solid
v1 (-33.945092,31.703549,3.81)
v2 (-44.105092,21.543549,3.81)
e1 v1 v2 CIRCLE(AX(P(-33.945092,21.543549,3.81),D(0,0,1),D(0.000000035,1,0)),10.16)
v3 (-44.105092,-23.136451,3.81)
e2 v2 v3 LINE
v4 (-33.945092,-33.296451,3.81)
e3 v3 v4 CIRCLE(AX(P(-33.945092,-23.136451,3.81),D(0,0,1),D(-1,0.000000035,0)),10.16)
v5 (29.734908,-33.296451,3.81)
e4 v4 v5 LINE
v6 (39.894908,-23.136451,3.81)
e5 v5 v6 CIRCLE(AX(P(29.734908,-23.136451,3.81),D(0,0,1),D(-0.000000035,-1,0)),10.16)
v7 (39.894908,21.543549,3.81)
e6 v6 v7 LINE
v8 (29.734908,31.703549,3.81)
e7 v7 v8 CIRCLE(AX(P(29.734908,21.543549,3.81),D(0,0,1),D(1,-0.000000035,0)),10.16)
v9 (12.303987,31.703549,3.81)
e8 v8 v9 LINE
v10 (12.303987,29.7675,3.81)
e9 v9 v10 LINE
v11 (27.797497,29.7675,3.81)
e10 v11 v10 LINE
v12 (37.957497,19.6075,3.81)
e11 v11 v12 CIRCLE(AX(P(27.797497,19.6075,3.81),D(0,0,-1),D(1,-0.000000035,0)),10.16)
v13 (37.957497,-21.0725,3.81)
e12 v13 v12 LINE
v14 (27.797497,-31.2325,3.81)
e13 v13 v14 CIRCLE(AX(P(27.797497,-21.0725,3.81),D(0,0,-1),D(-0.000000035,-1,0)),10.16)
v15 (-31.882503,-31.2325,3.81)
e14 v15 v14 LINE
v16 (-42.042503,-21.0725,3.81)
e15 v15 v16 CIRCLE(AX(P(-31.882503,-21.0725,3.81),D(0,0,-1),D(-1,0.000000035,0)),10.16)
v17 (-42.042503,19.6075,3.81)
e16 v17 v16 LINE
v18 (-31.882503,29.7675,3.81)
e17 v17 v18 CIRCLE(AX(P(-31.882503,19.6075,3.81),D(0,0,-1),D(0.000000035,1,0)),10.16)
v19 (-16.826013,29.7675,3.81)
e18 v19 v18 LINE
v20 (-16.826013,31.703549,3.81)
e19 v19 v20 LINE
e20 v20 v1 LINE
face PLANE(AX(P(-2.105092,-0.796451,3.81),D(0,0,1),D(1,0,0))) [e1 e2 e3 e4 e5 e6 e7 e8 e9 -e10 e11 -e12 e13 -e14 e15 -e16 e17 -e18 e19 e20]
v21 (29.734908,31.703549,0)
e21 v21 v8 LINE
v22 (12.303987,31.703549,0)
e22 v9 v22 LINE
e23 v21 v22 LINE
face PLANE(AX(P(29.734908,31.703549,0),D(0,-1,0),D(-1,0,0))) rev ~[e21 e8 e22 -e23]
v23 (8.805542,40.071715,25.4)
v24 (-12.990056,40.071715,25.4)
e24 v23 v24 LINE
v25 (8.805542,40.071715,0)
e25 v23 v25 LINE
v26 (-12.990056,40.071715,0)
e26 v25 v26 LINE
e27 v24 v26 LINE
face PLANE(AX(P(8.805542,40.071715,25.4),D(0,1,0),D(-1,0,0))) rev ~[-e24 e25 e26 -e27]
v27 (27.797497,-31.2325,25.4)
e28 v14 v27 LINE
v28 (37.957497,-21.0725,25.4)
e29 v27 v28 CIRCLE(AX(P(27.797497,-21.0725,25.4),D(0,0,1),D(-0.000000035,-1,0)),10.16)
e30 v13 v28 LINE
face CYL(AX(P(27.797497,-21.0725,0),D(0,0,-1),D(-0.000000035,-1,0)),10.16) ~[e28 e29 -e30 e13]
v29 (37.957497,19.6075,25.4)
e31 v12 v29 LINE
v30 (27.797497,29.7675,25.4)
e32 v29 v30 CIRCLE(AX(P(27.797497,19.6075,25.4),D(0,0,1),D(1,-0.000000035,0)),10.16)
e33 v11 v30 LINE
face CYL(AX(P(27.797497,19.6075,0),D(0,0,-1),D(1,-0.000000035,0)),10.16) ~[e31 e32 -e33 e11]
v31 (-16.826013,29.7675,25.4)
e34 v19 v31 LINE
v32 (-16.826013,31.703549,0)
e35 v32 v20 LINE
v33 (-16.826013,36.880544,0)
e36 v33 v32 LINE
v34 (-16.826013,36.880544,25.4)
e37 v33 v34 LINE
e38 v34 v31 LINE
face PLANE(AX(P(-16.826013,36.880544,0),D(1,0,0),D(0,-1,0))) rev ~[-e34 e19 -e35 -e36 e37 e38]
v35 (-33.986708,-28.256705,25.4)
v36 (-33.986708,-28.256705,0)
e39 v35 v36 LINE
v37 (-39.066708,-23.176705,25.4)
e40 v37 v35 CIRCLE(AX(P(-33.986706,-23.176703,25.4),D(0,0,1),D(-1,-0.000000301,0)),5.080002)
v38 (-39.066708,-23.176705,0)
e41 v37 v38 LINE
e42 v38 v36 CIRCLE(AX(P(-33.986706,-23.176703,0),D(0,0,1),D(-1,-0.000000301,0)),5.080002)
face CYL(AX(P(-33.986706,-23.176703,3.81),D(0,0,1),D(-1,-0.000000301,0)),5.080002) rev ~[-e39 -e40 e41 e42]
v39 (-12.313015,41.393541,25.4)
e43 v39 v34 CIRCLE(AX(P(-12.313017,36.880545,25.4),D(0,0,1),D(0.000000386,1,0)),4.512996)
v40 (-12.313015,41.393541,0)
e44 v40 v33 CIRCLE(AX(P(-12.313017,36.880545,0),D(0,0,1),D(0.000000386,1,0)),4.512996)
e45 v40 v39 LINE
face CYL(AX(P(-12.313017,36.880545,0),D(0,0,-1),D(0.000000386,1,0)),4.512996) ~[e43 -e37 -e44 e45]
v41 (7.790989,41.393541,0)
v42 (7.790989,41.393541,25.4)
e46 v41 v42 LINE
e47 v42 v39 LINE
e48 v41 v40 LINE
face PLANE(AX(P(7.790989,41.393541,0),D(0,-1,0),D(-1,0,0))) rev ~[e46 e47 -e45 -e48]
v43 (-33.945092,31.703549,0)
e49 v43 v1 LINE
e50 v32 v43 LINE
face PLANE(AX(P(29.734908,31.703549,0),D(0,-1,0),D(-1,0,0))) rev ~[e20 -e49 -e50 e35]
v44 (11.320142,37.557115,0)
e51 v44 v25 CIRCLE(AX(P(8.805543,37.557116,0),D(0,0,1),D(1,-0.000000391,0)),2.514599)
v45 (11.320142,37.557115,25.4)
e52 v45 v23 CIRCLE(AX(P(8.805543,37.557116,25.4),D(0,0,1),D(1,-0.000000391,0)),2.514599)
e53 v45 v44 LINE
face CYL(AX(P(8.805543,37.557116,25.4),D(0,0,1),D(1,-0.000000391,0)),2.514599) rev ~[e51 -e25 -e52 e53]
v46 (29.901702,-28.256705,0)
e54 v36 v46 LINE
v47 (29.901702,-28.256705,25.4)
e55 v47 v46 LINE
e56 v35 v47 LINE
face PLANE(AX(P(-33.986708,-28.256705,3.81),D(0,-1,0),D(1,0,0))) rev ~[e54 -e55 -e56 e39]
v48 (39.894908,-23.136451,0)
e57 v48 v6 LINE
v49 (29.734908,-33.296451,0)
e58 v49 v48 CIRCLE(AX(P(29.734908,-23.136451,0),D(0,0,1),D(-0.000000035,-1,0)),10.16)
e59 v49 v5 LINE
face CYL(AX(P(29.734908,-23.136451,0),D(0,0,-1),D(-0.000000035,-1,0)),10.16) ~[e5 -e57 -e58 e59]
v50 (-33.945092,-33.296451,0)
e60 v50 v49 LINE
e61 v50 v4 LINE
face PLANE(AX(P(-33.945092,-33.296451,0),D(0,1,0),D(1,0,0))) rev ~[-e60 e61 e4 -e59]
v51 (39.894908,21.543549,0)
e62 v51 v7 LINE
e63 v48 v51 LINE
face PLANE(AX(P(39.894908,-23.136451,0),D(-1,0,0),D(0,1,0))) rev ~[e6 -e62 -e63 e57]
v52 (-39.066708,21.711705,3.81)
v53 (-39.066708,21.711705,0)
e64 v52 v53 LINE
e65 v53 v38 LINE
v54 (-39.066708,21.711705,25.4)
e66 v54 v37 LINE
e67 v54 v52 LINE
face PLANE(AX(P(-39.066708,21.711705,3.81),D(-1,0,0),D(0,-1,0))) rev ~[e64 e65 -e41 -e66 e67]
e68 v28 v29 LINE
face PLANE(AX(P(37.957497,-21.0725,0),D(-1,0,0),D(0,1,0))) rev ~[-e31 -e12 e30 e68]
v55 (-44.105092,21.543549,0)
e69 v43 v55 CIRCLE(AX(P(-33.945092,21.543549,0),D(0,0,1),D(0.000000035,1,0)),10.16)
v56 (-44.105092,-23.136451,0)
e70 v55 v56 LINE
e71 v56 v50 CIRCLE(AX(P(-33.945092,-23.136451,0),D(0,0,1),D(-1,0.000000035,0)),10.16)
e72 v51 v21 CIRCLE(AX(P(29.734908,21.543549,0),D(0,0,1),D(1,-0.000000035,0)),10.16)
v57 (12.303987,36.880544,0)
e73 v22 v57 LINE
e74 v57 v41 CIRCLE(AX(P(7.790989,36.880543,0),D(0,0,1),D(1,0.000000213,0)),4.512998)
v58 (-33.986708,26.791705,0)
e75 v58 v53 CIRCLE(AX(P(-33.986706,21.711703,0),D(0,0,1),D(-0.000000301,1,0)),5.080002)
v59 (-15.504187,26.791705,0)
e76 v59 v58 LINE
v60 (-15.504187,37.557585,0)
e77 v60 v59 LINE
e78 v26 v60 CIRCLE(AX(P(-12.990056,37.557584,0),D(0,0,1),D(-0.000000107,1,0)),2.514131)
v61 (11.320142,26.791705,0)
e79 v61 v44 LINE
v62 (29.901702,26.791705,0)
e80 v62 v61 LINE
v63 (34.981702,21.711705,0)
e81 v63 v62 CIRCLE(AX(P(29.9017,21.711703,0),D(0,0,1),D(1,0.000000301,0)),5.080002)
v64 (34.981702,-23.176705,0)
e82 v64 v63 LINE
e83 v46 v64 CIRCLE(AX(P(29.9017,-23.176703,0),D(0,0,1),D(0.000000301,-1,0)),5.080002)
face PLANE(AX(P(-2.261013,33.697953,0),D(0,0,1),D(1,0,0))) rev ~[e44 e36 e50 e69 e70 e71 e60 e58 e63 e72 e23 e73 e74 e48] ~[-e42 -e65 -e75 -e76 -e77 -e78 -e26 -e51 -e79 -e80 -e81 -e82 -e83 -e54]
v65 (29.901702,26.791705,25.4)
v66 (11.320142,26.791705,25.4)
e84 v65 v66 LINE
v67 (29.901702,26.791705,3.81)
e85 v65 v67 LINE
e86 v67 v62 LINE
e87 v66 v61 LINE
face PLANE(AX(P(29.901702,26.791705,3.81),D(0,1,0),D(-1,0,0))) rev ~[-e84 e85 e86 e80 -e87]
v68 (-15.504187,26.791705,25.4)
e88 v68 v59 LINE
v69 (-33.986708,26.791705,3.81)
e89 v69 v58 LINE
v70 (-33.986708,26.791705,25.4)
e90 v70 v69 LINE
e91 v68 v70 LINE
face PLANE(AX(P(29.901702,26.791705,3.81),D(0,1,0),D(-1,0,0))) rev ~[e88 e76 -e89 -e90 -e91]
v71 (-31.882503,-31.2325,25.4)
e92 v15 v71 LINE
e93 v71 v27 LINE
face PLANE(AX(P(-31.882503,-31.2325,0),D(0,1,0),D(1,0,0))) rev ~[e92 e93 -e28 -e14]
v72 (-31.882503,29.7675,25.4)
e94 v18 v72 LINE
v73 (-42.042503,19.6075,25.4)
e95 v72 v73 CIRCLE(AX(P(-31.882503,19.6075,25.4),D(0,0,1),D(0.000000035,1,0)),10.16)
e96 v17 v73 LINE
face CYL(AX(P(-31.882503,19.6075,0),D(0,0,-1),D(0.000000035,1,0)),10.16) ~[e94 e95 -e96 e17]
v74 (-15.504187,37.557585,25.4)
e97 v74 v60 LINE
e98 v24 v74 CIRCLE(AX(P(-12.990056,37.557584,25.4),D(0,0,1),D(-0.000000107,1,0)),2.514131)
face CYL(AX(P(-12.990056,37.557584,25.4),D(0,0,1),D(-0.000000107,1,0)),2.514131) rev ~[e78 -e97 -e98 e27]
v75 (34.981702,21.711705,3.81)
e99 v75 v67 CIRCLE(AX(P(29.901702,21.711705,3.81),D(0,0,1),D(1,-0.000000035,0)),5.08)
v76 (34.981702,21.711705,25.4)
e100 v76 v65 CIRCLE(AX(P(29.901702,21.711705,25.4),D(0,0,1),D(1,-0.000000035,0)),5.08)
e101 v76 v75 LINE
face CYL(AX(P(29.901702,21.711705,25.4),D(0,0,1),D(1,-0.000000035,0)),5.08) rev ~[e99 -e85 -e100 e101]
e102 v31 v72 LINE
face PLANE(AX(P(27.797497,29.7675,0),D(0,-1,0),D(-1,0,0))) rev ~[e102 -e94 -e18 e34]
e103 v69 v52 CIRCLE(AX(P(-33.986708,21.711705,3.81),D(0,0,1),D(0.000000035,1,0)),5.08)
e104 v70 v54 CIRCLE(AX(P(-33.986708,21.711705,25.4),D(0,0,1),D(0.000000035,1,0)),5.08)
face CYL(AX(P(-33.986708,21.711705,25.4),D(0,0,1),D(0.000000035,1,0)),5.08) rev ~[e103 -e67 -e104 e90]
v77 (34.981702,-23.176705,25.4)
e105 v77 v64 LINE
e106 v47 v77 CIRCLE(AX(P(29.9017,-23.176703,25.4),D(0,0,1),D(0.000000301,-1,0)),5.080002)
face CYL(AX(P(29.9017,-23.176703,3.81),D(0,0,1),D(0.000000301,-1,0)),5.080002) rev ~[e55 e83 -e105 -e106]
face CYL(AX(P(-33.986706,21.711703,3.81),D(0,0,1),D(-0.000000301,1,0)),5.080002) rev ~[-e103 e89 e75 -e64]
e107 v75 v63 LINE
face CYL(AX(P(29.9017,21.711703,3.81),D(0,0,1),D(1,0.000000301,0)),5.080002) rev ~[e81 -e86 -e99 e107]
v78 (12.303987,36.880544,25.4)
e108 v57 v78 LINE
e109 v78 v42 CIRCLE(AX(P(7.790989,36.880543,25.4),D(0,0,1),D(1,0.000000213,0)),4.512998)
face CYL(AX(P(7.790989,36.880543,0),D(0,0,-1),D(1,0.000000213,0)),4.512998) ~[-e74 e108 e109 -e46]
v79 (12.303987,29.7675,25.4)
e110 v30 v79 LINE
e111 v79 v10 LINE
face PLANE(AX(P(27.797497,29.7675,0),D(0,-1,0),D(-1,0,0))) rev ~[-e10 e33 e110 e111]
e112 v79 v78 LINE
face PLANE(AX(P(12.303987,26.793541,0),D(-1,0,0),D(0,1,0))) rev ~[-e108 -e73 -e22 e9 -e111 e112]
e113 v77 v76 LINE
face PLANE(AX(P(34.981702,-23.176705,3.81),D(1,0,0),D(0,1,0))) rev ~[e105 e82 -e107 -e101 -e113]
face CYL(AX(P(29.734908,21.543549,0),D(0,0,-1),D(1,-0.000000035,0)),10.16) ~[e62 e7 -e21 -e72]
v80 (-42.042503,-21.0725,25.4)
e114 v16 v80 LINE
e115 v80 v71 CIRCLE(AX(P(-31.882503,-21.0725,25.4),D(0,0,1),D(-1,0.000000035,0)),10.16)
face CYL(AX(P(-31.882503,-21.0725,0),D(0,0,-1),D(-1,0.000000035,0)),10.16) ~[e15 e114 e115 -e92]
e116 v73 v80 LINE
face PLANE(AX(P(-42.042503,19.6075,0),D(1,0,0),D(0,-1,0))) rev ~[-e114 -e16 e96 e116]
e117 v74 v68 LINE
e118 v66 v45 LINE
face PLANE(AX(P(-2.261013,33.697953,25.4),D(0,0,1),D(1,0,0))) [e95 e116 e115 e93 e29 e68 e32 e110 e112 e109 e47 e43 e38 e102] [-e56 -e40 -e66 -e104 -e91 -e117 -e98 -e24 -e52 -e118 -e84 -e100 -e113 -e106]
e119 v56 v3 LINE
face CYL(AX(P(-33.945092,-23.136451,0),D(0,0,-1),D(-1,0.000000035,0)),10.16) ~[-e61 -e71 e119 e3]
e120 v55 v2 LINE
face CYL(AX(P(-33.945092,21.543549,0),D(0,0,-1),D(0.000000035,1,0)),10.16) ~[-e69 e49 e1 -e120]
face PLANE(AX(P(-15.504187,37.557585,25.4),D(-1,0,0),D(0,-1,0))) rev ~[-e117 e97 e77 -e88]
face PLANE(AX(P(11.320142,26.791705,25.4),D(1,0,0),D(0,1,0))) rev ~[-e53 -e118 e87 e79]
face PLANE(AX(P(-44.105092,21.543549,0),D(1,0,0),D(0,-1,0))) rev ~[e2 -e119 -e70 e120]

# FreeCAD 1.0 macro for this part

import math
import FreeCAD as App
import Part
import Sketcher
Q = App.Units.Quantity

doc = App.newDocument("Part")
body = doc.addObject("PartDesign::Body", "Body")

sketch1 = body.newObject("Sketcher::SketchObject", "Sketch")
sketch1.AttachmentSupport = (doc.getObject("XY_Plane"), [""])
sketch1.MapMode = "FlatFace"
sketch1.addGeometry([
    Part.LineSegment(App.Vector(28, 30, 0), App.Vector(-32, 30, 0)),
    Part.ArcOfCircle(Part.Circle(App.Vector(-32, 20, 0), App.Vector(0, 0, 1), 10), math.radians(90), math.radians(180)),
    Part.LineSegment(App.Vector(-42, 20, 0), App.Vector(-42, -21, 0)),
    Part.ArcOfCircle(Part.Circle(App.Vector(-32, -21, 0), App.Vector(0, 0, 1), 10), math.radians(180), math.radians(270)),
    Part.LineSegment(App.Vector(-32, -31, 0), App.Vector(28, -31, 0)),
    Part.ArcOfCircle(Part.Circle(App.Vector(28, -21, 0), App.Vector(0, 0, 1), 10), math.radians(-90), math.radians(0)),
    Part.LineSegment(App.Vector(38, -21, 0), App.Vector(38, 20, 0)),
    Part.ArcOfCircle(Part.Circle(App.Vector(28, 20, 0), App.Vector(0, 0, 1), 10), math.radians(0), math.radians(90)),
], False)
sketch1.addConstraint([
    Sketcher.Constraint("Tangent", 0, 2, 1, 1),
    Sketcher.Constraint("Tangent", 1, 2, 2, 1),
    Sketcher.Constraint("Tangent", 2, 2, 3, 1),
    Sketcher.Constraint("Tangent", 3, 2, 4, 1),
    Sketcher.Constraint("Tangent", 4, 2, 5, 1),
    Sketcher.Constraint("Tangent", 5, 2, 6, 1),
    Sketcher.Constraint("Tangent", 6, 2, 7, 1),
    Sketcher.Constraint("Tangent", 7, 2, 0, 1),
    Sketcher.Constraint("Horizontal", 0),
    Sketcher.Constraint("Vertical", 2),
    Sketcher.Constraint("Horizontal", 4),
    Sketcher.Constraint("Vertical", 6),
    Sketcher.Constraint("Equal", 1, 3),
    Sketcher.Constraint("Equal", 3, 5),
    Sketcher.Constraint("Equal", 5, 7),
    Sketcher.Constraint("Radius", 1, Q("0.4 in")),
    Sketcher.Constraint("DistanceX", 0, 2, 0, 1, 59.68),
    Sketcher.Constraint("DistanceY", 2, 2, 2, 1, 40.68),
    Sketcher.Constraint("DistanceY", -1, 1, 1, 3, 19.6075),
    Sketcher.Constraint("DistanceX", 1, 3, -1, 1, 31.882503),
])
pad1 = body.newObject("PartDesign::Pad", "Pad")
pad1.Profile = sketch1
pad1.Length = Q("1 in")

sketch2 = body.newObject("Sketcher::SketchObject", "Sketch001")
sketch2.AttachmentSupport = (doc.getObject("XY_Plane"), [""])
sketch2.MapMode = "FlatFace"
sketch2.AttachmentOffset = App.Placement(App.Vector(0, 0, 1 * 25.4), App.Rotation())
sketch2.addGeometry([
    Part.LineSegment(App.Vector(30, 27, 0), App.Vector(-34, 27, 0)),
    Part.ArcOfCircle(Part.Circle(App.Vector(-34, 22, 0), App.Vector(0, 0, 1), 5), math.radians(90), math.radians(180)),
    Part.LineSegment(App.Vector(-39, 22, 0), App.Vector(-39, -23, 0)),
    Part.ArcOfCircle(Part.Circle(App.Vector(-34, -23, 0), App.Vector(0, 0, 1), 5), math.radians(-180), math.radians(-90)),
    Part.LineSegment(App.Vector(-34, -28, 0), App.Vector(30, -28, 0)),
    Part.ArcOfCircle(Part.Circle(App.Vector(30, -23, 0), App.Vector(0, 0, 1), 5), math.radians(-90), math.radians(0)),
    Part.LineSegment(App.Vector(35, -23, 0), App.Vector(35, 22, 0)),
    Part.ArcOfCircle(Part.Circle(App.Vector(30, 22, 0), App.Vector(0, 0, 1), 5), math.radians(0), math.radians(90)),
], False)
sketch2.addConstraint([
    Sketcher.Constraint("Tangent", 0, 2, 1, 1),
    Sketcher.Constraint("Tangent", 1, 2, 2, 1),
    Sketcher.Constraint("Tangent", 2, 2, 3, 1),
    Sketcher.Constraint("Tangent", 3, 2, 4, 1),
    Sketcher.Constraint("Tangent", 4, 2, 5, 1),
    Sketcher.Constraint("Tangent", 5, 2, 6, 1),
    Sketcher.Constraint("Tangent", 6, 2, 7, 1),
    Sketcher.Constraint("Tangent", 7, 2, 0, 1),
    Sketcher.Constraint("Horizontal", 0),
    Sketcher.Constraint("Vertical", 2),
    Sketcher.Constraint("Horizontal", 4),
    Sketcher.Constraint("Vertical", 6),
    Sketcher.Constraint("Equal", 1, 3),
    Sketcher.Constraint("Equal", 3, 5),
    Sketcher.Constraint("Equal", 5, 7),
    Sketcher.Constraint("Radius", 1, Q("0.2 in")),
    Sketcher.Constraint("DistanceX", 0, 2, 0, 1, 63.88841),
    Sketcher.Constraint("DistanceY", 2, 2, 2, 1, 44.88841),
    Sketcher.Constraint("DistanceX", -1, 1, 5, 3, 29.9017),
    Sketcher.Constraint("DistanceY", -1, 1, 1, 3, 21.711705),
])
pocket1 = body.newObject("PartDesign::Pocket", "Pocket")
pocket1.Profile = sketch2
pocket1.Length = Q("1 in")

sketch3 = body.newObject("Sketcher::SketchObject", "Sketch002")
sketch3.AttachmentSupport = (doc.getObject("XY_Plane"), [""])
sketch3.MapMode = "FlatFace"
sketch3.addGeometry([
    Part.LineSegment(App.Vector(30, 32, 0), App.Vector(-34, 32, 0)),
    Part.ArcOfCircle(Part.Circle(App.Vector(-34, 22, 0), App.Vector(0, 0, 1), 10), math.radians(90), math.radians(180)),
    Part.LineSegment(App.Vector(-44, 22, 0), App.Vector(-44, -23, 0)),
    Part.ArcOfCircle(Part.Circle(App.Vector(-34, -23, 0), App.Vector(0, 0, 1), 10), math.radians(180), math.radians(270)),
    Part.LineSegment(App.Vector(-34, -33, 0), App.Vector(30, -33, 0)),
    Part.ArcOfCircle(Part.Circle(App.Vector(30, -23, 0), App.Vector(0, 0, 1), 10), math.radians(-90), math.radians(0)),
    Part.LineSegment(App.Vector(40, -23, 0), App.Vector(40, 22, 0)),
    Part.ArcOfCircle(Part.Circle(App.Vector(30, 22, 0), App.Vector(0, 0, 1), 10), math.radians(0), math.radians(90)),
], False)
sketch3.addConstraint([
    Sketcher.Constraint("Tangent", 0, 2, 1, 1),
    Sketcher.Constraint("Tangent", 1, 2, 2, 1),
    Sketcher.Constraint("Tangent", 2, 2, 3, 1),
    Sketcher.Constraint("Tangent", 3, 2, 4, 1),
    Sketcher.Constraint("Tangent", 4, 2, 5, 1),
    Sketcher.Constraint("Tangent", 5, 2, 6, 1),
    Sketcher.Constraint("Tangent", 6, 2, 7, 1),
    Sketcher.Constraint("Tangent", 7, 2, 0, 1),
    Sketcher.Constraint("Horizontal", 0),
    Sketcher.Constraint("Vertical", 2),
    Sketcher.Constraint("Horizontal", 4),
    Sketcher.Constraint("Vertical", 6),
    Sketcher.Constraint("Equal", 1, 3),
    Sketcher.Constraint("Equal", 3, 5),
    Sketcher.Constraint("Equal", 5, 7),
    Sketcher.Constraint("Radius", 1, Q("0.4 in")),
    Sketcher.Constraint("DistanceX", 0, 2, 0, 1, 63.68),
    Sketcher.Constraint("DistanceY", 2, 2, 2, 1, 44.68),
    Sketcher.Constraint("DistanceY", -1, 1, 1, 3, 21.543549),
    Sketcher.Constraint("DistanceX", -1, 1, 5, 3, 29.734908),
])
pad2 = body.newObject("PartDesign::Pad", "Pad001")
pad2.Profile = sketch3
pad2.Length = Q("0.15 in")

sketch4 = body.newObject("Sketcher::SketchObject", "Sketch003")
sketch4.AttachmentSupport = (doc.getObject("XY_Plane"), [""])
sketch4.MapMode = "FlatFace"
sketch4.AttachmentOffset = App.Placement(App.Vector(0, 0, 0.15 * 25.4), App.Rotation())
sketch4.addGeometry([
    Part.LineSegment(App.Vector(30, 27, 0), App.Vector(-34, 27, 0)),
    Part.ArcOfCircle(Part.Circle(App.Vector(-34, 22, 0), App.Vector(0, 0, 1), 5), math.radians(90), math.radians(180)),
    Part.LineSegment(App.Vector(-39, 22, 0), App.Vector(-39, -23, 0)),
    Part.ArcOfCircle(Part.Circle(App.Vector(-34, -23, 0), App.Vector(0, 0, 1), 5), math.radians(-180), math.radians(-90)),
    Part.LineSegment(App.Vector(-34, -28, 0), App.Vector(30, -28, 0)),
    Part.ArcOfCircle(Part.Circle(App.Vector(30, -23, 0), App.Vector(0, 0, 1), 5), math.radians(-90), math.radians(0)),
    Part.LineSegment(App.Vector(35, -23, 0), App.Vector(35, 22, 0)),
    Part.ArcOfCircle(Part.Circle(App.Vector(30, 22, 0), App.Vector(0, 0, 1), 5), math.radians(0), math.radians(90)),
], False)
sketch4.addConstraint([
    Sketcher.Constraint("Tangent", 0, 2, 1, 1),
    Sketcher.Constraint("Tangent", 1, 2, 2, 1),
    Sketcher.Constraint("Tangent", 2, 2, 3, 1),
    Sketcher.Constraint("Tangent", 3, 2, 4, 1),
    Sketcher.Constraint("Tangent", 4, 2, 5, 1),
    Sketcher.Constraint("Tangent", 5, 2, 6, 1),
    Sketcher.Constraint("Tangent", 6, 2, 7, 1),
    Sketcher.Constraint("Tangent", 7, 2, 0, 1),
    Sketcher.Constraint("Horizontal", 0),
    Sketcher.Constraint("Vertical", 2),
    Sketcher.Constraint("Horizontal", 4),
    Sketcher.Constraint("Vertical", 6),
    Sketcher.Constraint("Equal", 1, 3),
    Sketcher.Constraint("Equal", 3, 5),
    Sketcher.Constraint("Equal", 5, 7),
    Sketcher.Constraint("Radius", 1, Q("0.2000001 in")),
    Sketcher.Constraint("DistanceX", 0, 2, 0, 1, 63.88841),
    Sketcher.Constraint("DistanceY", 2, 2, 2, 1, 44.88841),
    Sketcher.Constraint("DistanceX", -1, 1, 5, 3, 29.9017),
    Sketcher.Constraint("DistanceY", -1, 1, 1, 3, 21.711703),
])
pocket2 = body.newObject("PartDesign::Pocket", "Pocket001")
pocket2.Profile = sketch4
pocket2.Length = Q("1 in")

sketch5 = body.newObject("Sketcher::SketchObject", "Sketch004")
sketch5.AttachmentSupport = (doc.getObject("XY_Plane"), [""])
sketch5.MapMode = "FlatFace"
sketch5.addGeometry([
    Part.LineSegment(App.Vector(-16.8, 36.9, 0), App.Vector(-16.8, 26.8, 0)),
    Part.LineSegment(App.Vector(-16.8, 26.8, 0), App.Vector(12.3, 26.8, 0)),
    Part.LineSegment(App.Vector(12.3, 26.8, 0), App.Vector(12.3, 36.9, 0)),
    Part.ArcOfCircle(Part.Circle(App.Vector(7.8, 36.9, 0), App.Vector(0, 0, 1), 4.5), math.radians(0), math.radians(90)),
    Part.LineSegment(App.Vector(7.8, 41.4, 0), App.Vector(-12.3, 41.4, 0)),
    Part.ArcOfCircle(Part.Circle(App.Vector(-12.3, 36.9, 0), App.Vector(0, 0, 1), 4.5), math.radians(90), math.radians(180)),
], False)
sketch5.addConstraint([
    Sketcher.Constraint("Coincident", 0, 2, 1, 1),
    Sketcher.Constraint("Coincident", 1, 2, 2, 1),
    Sketcher.Constraint("Tangent", 2, 2, 3, 1),
    Sketcher.Constraint("Tangent", 3, 2, 4, 1),
    Sketcher.Constraint("Tangent", 4, 2, 5, 1),
    Sketcher.Constraint("Tangent", 5, 2, 0, 1),
    Sketcher.Constraint("Vertical", 0),
    Sketcher.Constraint("Horizontal", 1),
    Sketcher.Constraint("Vertical", 2),
    Sketcher.Constraint("Horizontal", 4),
    Sketcher.Constraint("Equal", 3, 5),
    Sketcher.Constraint("DistanceX", 1, 1, 1, 2, 29.13),
    Sketcher.Constraint("Radius", 3, 4.512998),
    Sketcher.Constraint("DistanceY", 1, 2, 3, 2, 14.6),
    Sketcher.Constraint("DistanceX", -1, 1, 3, 3, 7.790989),
    Sketcher.Constraint("DistanceY", -1, 1, 0, 2, 26.793541),
])
pad3 = body.newObject("PartDesign::Pad", "Pad002")
pad3.Profile = sketch5
pad3.Length = Q("1 in")

sketch6 = body.newObject("Sketcher::SketchObject", "Sketch005")
sketch6.AttachmentSupport = (doc.getObject("XY_Plane"), [""])
sketch6.MapMode = "FlatFace"
sketch6.AttachmentOffset = App.Placement(App.Vector(0, 0, 1 * 25.4), App.Rotation())
sketch6.addGeometry([
    Part.LineSegment(App.Vector(8.8, 40.1, 0), App.Vector(-13, 40.1, 0)),
    Part.ArcOfCircle(Part.Circle(App.Vector(-13, 37.6, 0), App.Vector(0, 0, 1), 2.5), math.radians(90), math.radians(180)),
    Part.LineSegment(App.Vector(-15.5, 37.6, 0), App.Vector(-15.5, 26.8, 0)),
    Part.LineSegment(App.Vector(-15.5, 26.8, 0), App.Vector(11.3, 26.8, 0)),
    Part.LineSegment(App.Vector(11.3, 26.8, 0), App.Vector(11.3, 37.6, 0)),
    Part.ArcOfCircle(Part.Circle(App.Vector(8.8, 37.6, 0), App.Vector(0, 0, 1), 2.5), math.radians(0), math.radians(90)),
], False)
sketch6.addConstraint([
    Sketcher.Constraint("Tangent", 0, 2, 1, 1),
    Sketcher.Constraint("Tangent", 1, 2, 2, 1),
    Sketcher.Constraint("Coincident", 2, 2, 3, 1),
    Sketcher.Constraint("Coincident", 3, 2, 4, 1),
    Sketcher.Constraint("Tangent", 4, 2, 5, 1),
    Sketcher.Constraint("Tangent", 5, 2, 0, 1),
    Sketcher.Constraint("Horizontal", 0),
    Sketcher.Constraint("Vertical", 2),
    Sketcher.Constraint("Horizontal", 3),
    Sketcher.Constraint("Vertical", 4),
    Sketcher.Constraint("Radius", 5, Q("0.099 in")),
    Sketcher.Constraint("Radius", 1, 2.514131),
    Sketcher.Constraint("DistanceX", 3, 1, 3, 2, 26.824329),
    Sketcher.Constraint("DistanceY", 2, 2, 2, 1, 10.76588),
    Sketcher.Constraint("DistanceX", 1, 3, -1, 1, 12.990056),
    Sketcher.Constraint("DistanceY", -1, 1, 1, 3, 37.557584),
])
pocket3 = body.newObject("PartDesign::Pocket", "Pocket002")
pocket3.Profile = sketch6
pocket3.Length = Q("1 in")

doc.recompute()
